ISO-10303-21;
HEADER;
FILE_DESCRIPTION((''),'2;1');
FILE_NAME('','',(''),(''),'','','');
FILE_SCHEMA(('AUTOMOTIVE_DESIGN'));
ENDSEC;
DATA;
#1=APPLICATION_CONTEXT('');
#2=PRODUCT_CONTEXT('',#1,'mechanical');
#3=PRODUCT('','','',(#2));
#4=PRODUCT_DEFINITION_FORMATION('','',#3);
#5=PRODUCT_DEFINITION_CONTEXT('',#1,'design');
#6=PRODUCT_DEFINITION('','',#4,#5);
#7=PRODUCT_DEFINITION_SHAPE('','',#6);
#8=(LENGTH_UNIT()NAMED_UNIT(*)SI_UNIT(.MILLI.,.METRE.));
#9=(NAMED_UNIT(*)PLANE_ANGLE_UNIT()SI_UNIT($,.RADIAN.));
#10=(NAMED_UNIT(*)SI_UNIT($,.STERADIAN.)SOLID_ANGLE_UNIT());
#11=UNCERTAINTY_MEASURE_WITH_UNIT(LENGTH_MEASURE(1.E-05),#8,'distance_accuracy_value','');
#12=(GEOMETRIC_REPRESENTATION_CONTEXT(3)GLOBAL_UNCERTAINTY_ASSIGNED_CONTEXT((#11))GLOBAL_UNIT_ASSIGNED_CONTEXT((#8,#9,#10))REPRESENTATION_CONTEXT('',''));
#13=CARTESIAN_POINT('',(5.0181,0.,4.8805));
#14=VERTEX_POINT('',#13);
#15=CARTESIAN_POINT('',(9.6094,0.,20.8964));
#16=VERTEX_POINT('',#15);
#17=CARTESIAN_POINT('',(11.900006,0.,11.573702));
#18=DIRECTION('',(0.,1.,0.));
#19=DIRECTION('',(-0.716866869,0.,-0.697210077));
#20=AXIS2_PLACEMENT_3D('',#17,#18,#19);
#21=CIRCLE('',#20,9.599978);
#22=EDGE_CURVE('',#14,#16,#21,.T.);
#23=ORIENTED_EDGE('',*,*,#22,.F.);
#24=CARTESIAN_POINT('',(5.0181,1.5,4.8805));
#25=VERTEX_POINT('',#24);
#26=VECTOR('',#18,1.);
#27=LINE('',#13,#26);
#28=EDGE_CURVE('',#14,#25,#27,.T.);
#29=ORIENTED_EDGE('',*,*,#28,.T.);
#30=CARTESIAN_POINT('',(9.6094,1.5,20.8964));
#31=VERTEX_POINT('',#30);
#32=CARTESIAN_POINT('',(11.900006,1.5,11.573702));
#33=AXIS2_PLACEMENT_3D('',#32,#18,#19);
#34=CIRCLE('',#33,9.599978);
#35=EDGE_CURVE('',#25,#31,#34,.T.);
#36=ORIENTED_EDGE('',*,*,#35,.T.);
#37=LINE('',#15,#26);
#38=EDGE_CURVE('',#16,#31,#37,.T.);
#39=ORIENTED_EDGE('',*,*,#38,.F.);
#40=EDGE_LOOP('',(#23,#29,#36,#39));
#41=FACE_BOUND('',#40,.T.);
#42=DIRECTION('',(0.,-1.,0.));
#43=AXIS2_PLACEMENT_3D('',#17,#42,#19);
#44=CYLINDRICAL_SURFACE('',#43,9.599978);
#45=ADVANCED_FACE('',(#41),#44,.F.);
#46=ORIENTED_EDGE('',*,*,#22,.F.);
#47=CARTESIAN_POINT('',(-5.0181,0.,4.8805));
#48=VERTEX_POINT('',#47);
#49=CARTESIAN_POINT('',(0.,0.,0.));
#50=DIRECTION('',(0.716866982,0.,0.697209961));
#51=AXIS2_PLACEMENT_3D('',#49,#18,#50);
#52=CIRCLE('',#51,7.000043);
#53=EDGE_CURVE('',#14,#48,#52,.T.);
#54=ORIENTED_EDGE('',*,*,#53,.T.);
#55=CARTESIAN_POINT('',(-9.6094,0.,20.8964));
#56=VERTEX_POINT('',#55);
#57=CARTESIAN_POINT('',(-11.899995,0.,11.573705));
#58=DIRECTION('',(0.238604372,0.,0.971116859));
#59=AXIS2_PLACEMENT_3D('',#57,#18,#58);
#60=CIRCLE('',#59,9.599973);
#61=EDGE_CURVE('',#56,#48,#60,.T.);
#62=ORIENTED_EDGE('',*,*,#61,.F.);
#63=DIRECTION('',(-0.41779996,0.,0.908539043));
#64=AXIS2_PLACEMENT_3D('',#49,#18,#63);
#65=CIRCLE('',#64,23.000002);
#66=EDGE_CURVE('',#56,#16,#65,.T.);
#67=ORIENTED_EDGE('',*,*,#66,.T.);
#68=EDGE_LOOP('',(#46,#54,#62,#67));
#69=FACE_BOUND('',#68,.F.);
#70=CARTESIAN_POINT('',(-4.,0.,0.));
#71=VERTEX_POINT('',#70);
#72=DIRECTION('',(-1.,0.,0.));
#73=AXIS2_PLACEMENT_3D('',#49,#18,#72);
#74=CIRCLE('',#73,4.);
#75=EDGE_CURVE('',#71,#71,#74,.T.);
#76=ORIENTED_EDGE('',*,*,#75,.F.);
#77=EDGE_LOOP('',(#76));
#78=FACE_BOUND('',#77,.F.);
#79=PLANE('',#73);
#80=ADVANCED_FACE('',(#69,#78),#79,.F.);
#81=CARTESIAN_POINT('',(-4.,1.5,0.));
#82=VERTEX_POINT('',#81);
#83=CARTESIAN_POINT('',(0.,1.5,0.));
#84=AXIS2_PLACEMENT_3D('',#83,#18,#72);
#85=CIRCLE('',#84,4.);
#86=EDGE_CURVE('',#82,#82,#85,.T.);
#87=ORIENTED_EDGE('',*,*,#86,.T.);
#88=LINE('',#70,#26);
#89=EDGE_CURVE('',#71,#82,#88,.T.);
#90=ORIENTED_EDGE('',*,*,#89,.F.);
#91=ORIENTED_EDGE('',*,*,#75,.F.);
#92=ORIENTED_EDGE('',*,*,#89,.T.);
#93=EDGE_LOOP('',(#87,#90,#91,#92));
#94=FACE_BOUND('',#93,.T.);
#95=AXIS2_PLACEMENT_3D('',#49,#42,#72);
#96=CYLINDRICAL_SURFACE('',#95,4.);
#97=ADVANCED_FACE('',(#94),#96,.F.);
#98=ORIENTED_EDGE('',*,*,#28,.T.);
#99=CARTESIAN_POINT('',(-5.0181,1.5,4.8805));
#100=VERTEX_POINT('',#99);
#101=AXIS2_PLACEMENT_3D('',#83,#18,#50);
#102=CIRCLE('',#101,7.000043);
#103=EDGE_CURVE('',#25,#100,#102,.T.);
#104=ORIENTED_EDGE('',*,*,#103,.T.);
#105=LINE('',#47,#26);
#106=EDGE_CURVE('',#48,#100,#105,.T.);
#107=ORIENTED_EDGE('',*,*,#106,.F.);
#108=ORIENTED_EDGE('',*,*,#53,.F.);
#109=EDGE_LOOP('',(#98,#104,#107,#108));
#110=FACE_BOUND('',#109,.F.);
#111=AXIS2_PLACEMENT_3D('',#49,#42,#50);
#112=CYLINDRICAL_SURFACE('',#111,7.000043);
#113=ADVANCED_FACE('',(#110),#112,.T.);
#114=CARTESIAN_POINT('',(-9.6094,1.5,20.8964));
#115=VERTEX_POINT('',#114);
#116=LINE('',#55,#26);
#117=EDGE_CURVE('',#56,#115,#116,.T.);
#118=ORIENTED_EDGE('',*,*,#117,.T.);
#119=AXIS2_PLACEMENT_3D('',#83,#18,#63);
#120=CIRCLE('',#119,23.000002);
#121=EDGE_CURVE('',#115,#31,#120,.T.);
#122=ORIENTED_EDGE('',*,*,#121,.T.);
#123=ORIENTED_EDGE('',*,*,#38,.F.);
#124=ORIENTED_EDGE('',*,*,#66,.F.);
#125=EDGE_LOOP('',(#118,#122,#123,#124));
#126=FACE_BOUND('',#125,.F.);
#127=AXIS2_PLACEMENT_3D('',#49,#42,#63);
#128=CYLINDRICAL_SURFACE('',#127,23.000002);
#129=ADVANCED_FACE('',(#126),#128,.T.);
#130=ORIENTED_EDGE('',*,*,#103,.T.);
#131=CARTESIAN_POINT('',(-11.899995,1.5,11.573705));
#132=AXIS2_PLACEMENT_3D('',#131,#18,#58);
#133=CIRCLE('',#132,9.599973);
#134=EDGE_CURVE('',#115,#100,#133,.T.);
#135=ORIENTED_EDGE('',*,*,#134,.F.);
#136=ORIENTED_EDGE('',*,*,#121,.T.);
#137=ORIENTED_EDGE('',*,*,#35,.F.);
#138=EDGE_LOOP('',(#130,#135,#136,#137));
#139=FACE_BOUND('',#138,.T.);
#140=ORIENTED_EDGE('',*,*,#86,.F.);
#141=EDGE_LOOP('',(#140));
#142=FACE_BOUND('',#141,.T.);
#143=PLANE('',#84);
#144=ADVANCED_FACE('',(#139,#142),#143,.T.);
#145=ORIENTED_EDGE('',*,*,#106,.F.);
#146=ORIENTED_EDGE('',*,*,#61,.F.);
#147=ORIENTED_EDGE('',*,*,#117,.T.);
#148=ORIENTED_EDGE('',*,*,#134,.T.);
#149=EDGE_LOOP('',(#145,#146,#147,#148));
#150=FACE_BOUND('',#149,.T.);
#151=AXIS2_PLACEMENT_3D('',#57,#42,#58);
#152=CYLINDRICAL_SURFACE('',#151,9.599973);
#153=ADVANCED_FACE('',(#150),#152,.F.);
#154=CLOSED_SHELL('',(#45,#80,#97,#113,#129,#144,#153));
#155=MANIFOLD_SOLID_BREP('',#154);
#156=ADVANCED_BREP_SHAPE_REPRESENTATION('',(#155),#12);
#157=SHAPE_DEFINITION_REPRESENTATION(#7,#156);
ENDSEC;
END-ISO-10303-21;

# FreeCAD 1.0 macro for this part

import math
import FreeCAD as App
import Part
import Sketcher
from FreeCAD import Vector

doc = App.newDocument("Part")
body = doc.addObject("PartDesign::Body", "Body")

# Sketch on XZ plane
sketch1 = body.newObject("Sketcher::SketchObject", "Sketch")
sketch1.AttachmentSupport = (doc.getObject("XZ_Plane"), [""])
sketch1.MapMode = "FlatFace"
sketch1.addGeometry([
    Part.ArcOfCircle(Part.Circle(Vector(0, 0, 0), Vector(0, 0, 1), 7), math.radians(136), math.radians(404)),  # 0
    Part.ArcOfCircle(Part.Circle(Vector(-11.9, 11.6, 0), Vector(0, 0, 1), 9.6), math.radians(-44), math.radians(76)),  # 1
    Part.ArcOfCircle(Part.Circle(Vector(0, 0, 0), Vector(0, 0, 1), 23), math.radians(65), math.radians(115)),  # 2
    Part.ArcOfCircle(Part.Circle(Vector(11.9, 11.6, 0), Vector(0, 0, 1), 9.6), math.radians(104), math.radians(224)),  # 3
    Part.Circle(Vector(0, 0, 0), Vector(0, 0, 1), 4),  # 4
], False)
sketch1.addConstraint([
    Sketcher.Constraint("Tangent", 0, 1, 1, 1),
    Sketcher.Constraint("Coincident", 1, 2, 2, 2),
    Sketcher.Constraint("Coincident", 2, 1, 3, 1),
    Sketcher.Constraint("Tangent", 3, 2, 0, 2),
    Sketcher.Constraint("Coincident", 0, 3, -1, 1),
    Sketcher.Constraint("Coincident", 2, 3, -1, 1),
    Sketcher.Constraint("Coincident", 4, 3, -1, 1),
    Sketcher.Constraint("Equal", 1, 3),
    Sketcher.Constraint("Horizontal", 1, 3, 3, 3),
    Sketcher.Constraint("Diameter", 4, 8.0),
    Sketcher.Constraint("Radius", 0, 7.0),
    Sketcher.Constraint("Radius", 2, 23.0),
    Sketcher.Constraint("Radius", 1, 9.6),
    Sketcher.Constraint("DistanceX", 1, 3, -1, 1, 11.9),
])
pad1 = body.newObject("PartDesign::Pad", "Pad")
pad1.Profile = sketch1
pad1.Length = 1.5
pad1.Reversed = True

doc.recompute()
